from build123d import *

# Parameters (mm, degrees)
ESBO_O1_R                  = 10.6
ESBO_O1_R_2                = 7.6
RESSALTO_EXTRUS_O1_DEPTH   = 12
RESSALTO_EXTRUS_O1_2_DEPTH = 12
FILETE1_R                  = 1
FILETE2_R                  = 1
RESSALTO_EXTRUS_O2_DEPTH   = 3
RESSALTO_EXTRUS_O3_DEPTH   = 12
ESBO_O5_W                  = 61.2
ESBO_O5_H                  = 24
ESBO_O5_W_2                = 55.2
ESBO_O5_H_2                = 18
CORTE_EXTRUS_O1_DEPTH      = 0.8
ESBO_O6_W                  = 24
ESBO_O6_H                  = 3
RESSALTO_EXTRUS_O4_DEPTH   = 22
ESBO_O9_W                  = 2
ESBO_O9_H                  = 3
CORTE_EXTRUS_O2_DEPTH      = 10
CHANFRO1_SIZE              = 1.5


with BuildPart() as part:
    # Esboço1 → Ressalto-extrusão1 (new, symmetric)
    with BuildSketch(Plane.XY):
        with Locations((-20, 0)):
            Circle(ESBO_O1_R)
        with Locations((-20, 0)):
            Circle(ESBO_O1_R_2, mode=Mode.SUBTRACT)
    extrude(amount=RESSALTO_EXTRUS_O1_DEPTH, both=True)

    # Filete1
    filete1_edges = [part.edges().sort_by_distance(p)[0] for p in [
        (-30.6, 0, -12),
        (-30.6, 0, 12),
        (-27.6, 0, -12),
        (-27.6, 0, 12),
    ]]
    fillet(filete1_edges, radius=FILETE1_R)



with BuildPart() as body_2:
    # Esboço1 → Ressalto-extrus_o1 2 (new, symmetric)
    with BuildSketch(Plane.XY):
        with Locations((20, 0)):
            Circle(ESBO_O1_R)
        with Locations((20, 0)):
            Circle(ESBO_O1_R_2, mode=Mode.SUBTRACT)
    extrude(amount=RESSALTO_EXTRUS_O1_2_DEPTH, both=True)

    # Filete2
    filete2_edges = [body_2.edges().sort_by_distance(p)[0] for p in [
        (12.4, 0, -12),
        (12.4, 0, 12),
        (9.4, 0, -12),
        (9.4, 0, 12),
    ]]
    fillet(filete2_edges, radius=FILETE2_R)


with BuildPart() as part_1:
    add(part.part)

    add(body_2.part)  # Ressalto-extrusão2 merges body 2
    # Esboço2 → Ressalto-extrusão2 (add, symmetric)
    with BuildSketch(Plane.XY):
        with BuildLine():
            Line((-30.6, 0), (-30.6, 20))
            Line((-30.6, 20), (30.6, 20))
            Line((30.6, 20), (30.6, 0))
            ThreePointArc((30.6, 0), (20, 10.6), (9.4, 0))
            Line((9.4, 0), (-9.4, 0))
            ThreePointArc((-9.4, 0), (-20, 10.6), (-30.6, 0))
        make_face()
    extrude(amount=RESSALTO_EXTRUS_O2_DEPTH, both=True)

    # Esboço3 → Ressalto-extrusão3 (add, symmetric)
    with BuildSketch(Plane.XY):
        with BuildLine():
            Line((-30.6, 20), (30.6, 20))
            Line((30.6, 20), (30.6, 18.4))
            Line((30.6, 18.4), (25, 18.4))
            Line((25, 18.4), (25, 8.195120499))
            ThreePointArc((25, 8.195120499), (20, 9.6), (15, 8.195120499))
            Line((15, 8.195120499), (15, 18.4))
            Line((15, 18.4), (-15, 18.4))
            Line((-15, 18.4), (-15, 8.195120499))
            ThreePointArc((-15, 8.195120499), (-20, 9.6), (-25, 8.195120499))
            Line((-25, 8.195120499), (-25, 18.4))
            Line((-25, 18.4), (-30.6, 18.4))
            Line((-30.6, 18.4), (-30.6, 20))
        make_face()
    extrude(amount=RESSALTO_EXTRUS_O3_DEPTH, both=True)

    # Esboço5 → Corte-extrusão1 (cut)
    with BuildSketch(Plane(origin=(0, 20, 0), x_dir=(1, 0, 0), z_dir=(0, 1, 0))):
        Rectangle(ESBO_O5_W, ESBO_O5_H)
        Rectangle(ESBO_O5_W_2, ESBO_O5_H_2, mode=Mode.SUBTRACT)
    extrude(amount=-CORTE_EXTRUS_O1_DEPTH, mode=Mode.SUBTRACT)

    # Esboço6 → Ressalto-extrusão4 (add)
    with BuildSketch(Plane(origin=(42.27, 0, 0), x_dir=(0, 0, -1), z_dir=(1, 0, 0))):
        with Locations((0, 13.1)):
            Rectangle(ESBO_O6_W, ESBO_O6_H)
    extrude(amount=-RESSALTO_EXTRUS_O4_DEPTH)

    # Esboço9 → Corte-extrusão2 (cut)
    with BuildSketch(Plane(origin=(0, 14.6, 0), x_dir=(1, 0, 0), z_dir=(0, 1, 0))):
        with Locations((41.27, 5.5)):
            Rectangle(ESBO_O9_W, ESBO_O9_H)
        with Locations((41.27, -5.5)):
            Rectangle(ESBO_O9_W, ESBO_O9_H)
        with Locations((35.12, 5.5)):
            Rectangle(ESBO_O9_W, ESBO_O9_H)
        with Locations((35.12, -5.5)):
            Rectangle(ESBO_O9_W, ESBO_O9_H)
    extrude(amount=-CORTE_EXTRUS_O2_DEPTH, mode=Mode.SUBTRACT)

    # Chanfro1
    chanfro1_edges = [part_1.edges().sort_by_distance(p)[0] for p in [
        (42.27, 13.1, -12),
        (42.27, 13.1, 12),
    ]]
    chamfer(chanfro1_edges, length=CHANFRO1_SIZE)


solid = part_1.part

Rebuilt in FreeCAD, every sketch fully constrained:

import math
import FreeCAD as App
import Part
import Sketcher
Q = App.Units.Quantity


def edges_at(feature, points):
    """Names of the edges that pass closest to the given points."""
    edges = feature.Shape.Edges
    near = lambda p: min(range(len(edges)), key=lambda i: edges[i].distToShape(Part.Vertex(*p))[0])
    return sorted({f"Edge{near(p) + 1}" for p in points})

doc = App.newDocument("Part")
params = doc.addObject("Spreadsheet::Sheet", "Params")
for row, (alias, value) in enumerate([
    ("sketch1_diameter", "21.2 mm"),
    ("sketch1_diameter2", "15.2 mm"),
    ("pad1_length", "24 mm"),
    ("fillet_radius", "1 mm"),
    ("sketch2_diameter", "21.2 mm"),
    ("sketch2_diameter2", "15.2 mm"),
    ("pad2_length", "24 mm"),
    ("fillet2_radius", "1 mm"),
    ("sketch3_radius", "10.6 mm"),
    ("sketch3_height", "20 mm"),
    ("sketch3_width", "18.8 mm"),
    ("pad3_length", "6 mm"),
    ("sketch4_radius", "9.6 mm"),
    ("sketch4_width", "30 mm"),
    ("sketch4_width2", "61.2 mm"),
    ("sketch4_width3", "5.6 mm"),
    ("sketch4_height", "1.6 mm"),
    ("pad4_length", "24 mm"),
    ("sketch5_height", "24 mm"),
    ("sketch5_height2", "18 mm"),
    ("sketch5_width", "61.2 mm"),
    ("sketch5_width2", "55.2 mm"),
    ("pocket1_length", "0.8 mm"),
    ("sketch6_width", "3 mm"),
    ("sketch6_height", "24 mm"),
    ("pad5_length", "22 mm"),
    ("sketch7_width", "2 mm"),
    ("sketch7_height", "3 mm"),
    ("pocket2_length", "10 mm"),
    ("chamfer_size", "1.5 mm"),
], start=1):
    params.set(f"A{row}", alias)
    params.set(f"B{row}", "=" + value)
    params.setAlias(f"B{row}", alias)

body = doc.addObject("PartDesign::Body", "Body")

# Sketch on XY plane
sketch1 = body.newObject("Sketcher::SketchObject", "Sketch")
sketch1.AttachmentSupport = (doc.getObject("XY_Plane"), [""])
sketch1.MapMode = "FlatFace"
sketch1.addGeometry([
    Part.Circle(App.Vector(-20, 0, 0), App.Vector(0, 0, 1), 11),
    Part.Circle(App.Vector(-20, 0, 0), App.Vector(0, 0, 1), 8),
], False)
sketch1.addConstraint([
    Sketcher.Constraint("Coincident", 1, 3, 0, 3),
    Sketcher.Constraint("PointOnObject", 0, 3, -1),
    Sketcher.Constraint("Diameter", 0, Q("21.2 mm")),
    Sketcher.Constraint("Diameter", 1, Q("15.2 mm")),
    Sketcher.Constraint("DistanceX", 0, 3, -1, 1, Q("20 mm")),
])
sketch1.setExpression("Constraints[2]", "Params.sketch1_diameter")
sketch1.setExpression("Constraints[3]", "Params.sketch1_diameter2")
pad1 = body.newObject("PartDesign::Pad", "Pad")
pad1.Profile = sketch1
pad1.setExpression("Length", "Params.pad1_length")
pad1.Midplane = True
doc.recompute()

fillet = body.newObject("PartDesign::Fillet", "Fillet")
fillet.Base = (pad1, edges_at(pad1, [
    (-30.6, 0, -12),
    (-30.6, 0, 12),
    (-27.6, 0, -12),
    (-27.6, 0, 12),
]))
fillet.setExpression("Radius", "Params.fillet_radius")
body2 = doc.addObject("PartDesign::Body", "Body001")

# Sketch on XY plane
sketch2 = body2.newObject("Sketcher::SketchObject", "Sketch001")
sketch2.AttachmentSupport = (doc.getObject("XY_Plane001"), [""])
sketch2.MapMode = "FlatFace"
sketch2.addGeometry([
    Part.Circle(App.Vector(20, 0, 0), App.Vector(0, 0, 1), 11),
    Part.Circle(App.Vector(20, 0, 0), App.Vector(0, 0, 1), 8),
], False)
sketch2.addConstraint([
    Sketcher.Constraint("Coincident", 1, 3, 0, 3),
    Sketcher.Constraint("PointOnObject", 0, 3, -1),
    Sketcher.Constraint("Diameter", 0, Q("21.2 mm")),
    Sketcher.Constraint("Diameter", 1, Q("15.2 mm")),
    Sketcher.Constraint("DistanceX", -1, 1, 0, 3, Q("20 mm")),
])
sketch2.setExpression("Constraints[2]", "Params.sketch2_diameter")
sketch2.setExpression("Constraints[3]", "Params.sketch2_diameter2")
pad2 = body2.newObject("PartDesign::Pad", "Pad001")
pad2.Profile = sketch2
pad2.setExpression("Length", "Params.pad2_length")
pad2.Midplane = True
doc.recompute()

fillet2 = body2.newObject("PartDesign::Fillet", "Fillet001")
fillet2.Base = (pad2, edges_at(pad2, [
    (12.4, 0, -12),
    (12.4, 0, 12),
    (9.4, 0, -12),
    (9.4, 0, 12),
]))
fillet2.setExpression("Radius", "Params.fillet2_radius")
body.AllowCompound = True
doc.recompute()

boolean = body.newObject("PartDesign::Boolean", "Boolean")
boolean.Type = "Fuse"
boolean.addObjects([body2])

# Sketch on XY plane
sketch3 = body.newObject("Sketcher::SketchObject", "Sketch002")
sketch3.AttachmentSupport = (doc.getObject("XY_Plane"), [""])
sketch3.MapMode = "FlatFace"
sketch3.addGeometry([
    Part.LineSegment(App.Vector(-31, 20, 0), App.Vector(-31, 0, 0)),  # 0
    Part.ArcOfCircle(Part.Circle(App.Vector(-20, 0, 0), App.Vector(0, 0, 1), 11), math.radians(0), math.radians(180)),  # 1
    Part.LineSegment(App.Vector(-9, 0, 0), App.Vector(9, 0, 0)),  # 2
    Part.ArcOfCircle(Part.Circle(App.Vector(20, 0, 0), App.Vector(0, 0, 1), 11), math.radians(0), math.radians(180)),  # 3
    Part.LineSegment(App.Vector(31, 0, 0), App.Vector(31, 20, 0)),  # 4
    Part.LineSegment(App.Vector(31, 20, 0), App.Vector(-31, 20, 0)),  # 5
], False)
sketch3.addConstraint([
    Sketcher.Constraint("Tangent", 0, 2, 1, 2),
    Sketcher.Constraint("Coincident", 1, 1, 2, 1),
    Sketcher.Constraint("Coincident", 2, 2, 3, 2),
    Sketcher.Constraint("Tangent", 3, 1, 4, 1),
    Sketcher.Constraint("Coincident", 4, 2, 5, 1),
    Sketcher.Constraint("Coincident", 5, 2, 0, 1),
    Sketcher.Constraint("Vertical", 0),
    Sketcher.Constraint("Horizontal", 2),
    Sketcher.Constraint("Vertical", 4),
    Sketcher.Constraint("Horizontal", 5),
    Sketcher.Constraint("Equal", 1, 3),
    Sketcher.Constraint("Symmetric", 1, 3, 3, 3, -1, 1),
    Sketcher.Constraint("PointOnObject", 1, 3, -1),
    Sketcher.Constraint("PointOnObject", 1, 1, -1),
    Sketcher.Constraint("Radius", 1, Q("10.6 mm")),
    Sketcher.Constraint("DistanceY", 0, 2, 0, 1, Q("20 mm")),
    Sketcher.Constraint("DistanceX", 2, 1, 2, 2, Q("18.8 mm")),
])
sketch3.setExpression("Constraints[14]", "Params.sketch3_radius")
sketch3.setExpression("Constraints[15]", "Params.sketch3_height")
sketch3.setExpression("Constraints[16]", "Params.sketch3_width")
pad3 = body.newObject("PartDesign::Pad", "Pad002")
pad3.Profile = sketch3
pad3.setExpression("Length", "Params.pad3_length")
pad3.Midplane = True

# Sketch on XY plane
sketch4 = body.newObject("Sketcher::SketchObject", "Sketch003")
sketch4.AttachmentSupport = (doc.getObject("XY_Plane"), [""])
sketch4.MapMode = "FlatFace"
sketch4.addGeometry([
    Part.LineSegment(App.Vector(30.6, 20, 0), App.Vector(-30.6, 20, 0)),  # 0
    Part.LineSegment(App.Vector(-30.6, 20, 0), App.Vector(-30.6, 18.4, 0)),  # 1
    Part.LineSegment(App.Vector(-30.6, 18.4, 0), App.Vector(-25, 18.4, 0)),  # 2
    Part.LineSegment(App.Vector(-25, 18.4, 0), App.Vector(-25, 8.2, 0)),  # 3
    Part.ArcOfCircle(Part.Circle(App.Vector(-20, 0, 0), App.Vector(0, 0, 1), 9.6), math.radians(59), math.radians(121)),  # 4
    Part.LineSegment(App.Vector(-15, 8.2, 0), App.Vector(-15, 18.4, 0)),  # 5
    Part.LineSegment(App.Vector(-15, 18.4, 0), App.Vector(15, 18.4, 0)),  # 6
    Part.LineSegment(App.Vector(15, 18.4, 0), App.Vector(15, 8.2, 0)),  # 7
    Part.ArcOfCircle(Part.Circle(App.Vector(20, 0, 0), App.Vector(0, 0, 1), 9.6), math.radians(59), math.radians(121)),  # 8
    Part.LineSegment(App.Vector(25, 8.2, 0), App.Vector(25, 18.4, 0)),  # 9
    Part.LineSegment(App.Vector(25, 18.4, 0), App.Vector(30.6, 18.4, 0)),  # 10
    Part.LineSegment(App.Vector(30.6, 18.4, 0), App.Vector(30.6, 20, 0)),  # 11
], False)
sketch4.addConstraint([
    Sketcher.Constraint("Coincident", 0, 2, 1, 1),
    Sketcher.Constraint("Coincident", 1, 2, 2, 1),
    Sketcher.Constraint("Coincident", 2, 2, 3, 1),
    Sketcher.Constraint("Coincident", 3, 2, 4, 2),
    Sketcher.Constraint("Coincident", 4, 1, 5, 1),
    Sketcher.Constraint("Coincident", 5, 2, 6, 1),
    Sketcher.Constraint("Coincident", 6, 2, 7, 1),
    Sketcher.Constraint("Coincident", 7, 2, 8, 2),
    Sketcher.Constraint("Coincident", 8, 1, 9, 1),
    Sketcher.Constraint("Coincident", 9, 2, 10, 1),
    Sketcher.Constraint("Coincident", 10, 2, 11, 1),
    Sketcher.Constraint("Coincident", 11, 2, 0, 1),
    Sketcher.Constraint("Horizontal", 0),
    Sketcher.Constraint("Vertical", 1),
    Sketcher.Constraint("Horizontal", 2),
    Sketcher.Constraint("Vertical", 3),
    Sketcher.Constraint("Vertical", 5),
    Sketcher.Constraint("Horizontal", 6),
    Sketcher.Constraint("Vertical", 7),
    Sketcher.Constraint("Vertical", 9),
    Sketcher.Constraint("Horizontal", 10),
    Sketcher.Constraint("Vertical", 11),
    Sketcher.Constraint("Equal", 4, 8),
    Sketcher.Constraint("Symmetric", 4, 3, 8, 3, -1, 1),
    Sketcher.Constraint("Symmetric", 4, 1, 7, 2, -2),
    Sketcher.Constraint("Symmetric", 2, 2, 9, 2, -2),
    Sketcher.Constraint("Horizontal", 3, 2, 4, 1),
    Sketcher.Constraint("Horizontal", 2, 2, 5, 2),
    Sketcher.Constraint("Equal", 2, 10),
    Sketcher.Constraint("Radius", 4, Q("9.6 mm")),
    Sketcher.Constraint("DistanceX", 6, 1, 6, 2, Q("30 mm")),
    Sketcher.Constraint("DistanceX", 0, 2, 0, 1, Q("61.2 mm")),
    Sketcher.Constraint("DistanceX", 2, 1, 2, 2, Q("5.6 mm")),
    Sketcher.Constraint("DistanceY", 1, 2, 1, 1, Q("1.6 mm")),
    Sketcher.Constraint("DistanceY", -1, 1, 0, 2, Q("20 mm")),
])
sketch4.setExpression("Constraints[29]", "Params.sketch4_radius")
sketch4.setExpression("Constraints[30]", "Params.sketch4_width")
sketch4.setExpression("Constraints[31]", "Params.sketch4_width2")
sketch4.setExpression("Constraints[32]", "Params.sketch4_width3")
sketch4.setExpression("Constraints[33]", "Params.sketch4_height")
pad4 = body.newObject("PartDesign::Pad", "Pad003")
pad4.Profile = sketch4
pad4.setExpression("Length", "Params.pad4_length")
pad4.Midplane = True

# Sketch on XZ plane
sketch5 = body.newObject("Sketcher::SketchObject", "Sketch004")
sketch5.AttachmentSupport = (doc.getObject("XZ_Plane"), [""])
sketch5.MapMode = "FlatFace"
sketch5.AttachmentOffset = App.Placement(App.Vector(0, 0, -20), App.Rotation())
sketch5.addGeometry([
    Part.LineSegment(App.Vector(-31, -12, 0), App.Vector(-31, 12, 0)),  # 0
    Part.LineSegment(App.Vector(-31, 12, 0), App.Vector(31, 12, 0)),  # 1
    Part.LineSegment(App.Vector(31, 12, 0), App.Vector(31, -12, 0)),  # 2
    Part.LineSegment(App.Vector(31, -12, 0), App.Vector(-31, -12, 0)),  # 3
    Part.LineSegment(App.Vector(28, 9, 0), App.Vector(-28, 9, 0)),  # 4
    Part.LineSegment(App.Vector(-28, 9, 0), App.Vector(-28, -9, 0)),  # 5
    Part.LineSegment(App.Vector(-28, -9, 0), App.Vector(28, -9, 0)),  # 6
    Part.LineSegment(App.Vector(28, -9, 0), App.Vector(28, 9, 0)),  # 7
], False)
sketch5.addConstraint([
    Sketcher.Constraint("Coincident", 0, 2, 1, 1),
    Sketcher.Constraint("Coincident", 1, 2, 2, 1),
    Sketcher.Constraint("Coincident", 2, 2, 3, 1),
    Sketcher.Constraint("Coincident", 3, 2, 0, 1),
    Sketcher.Constraint("Coincident", 4, 2, 5, 1),
    Sketcher.Constraint("Coincident", 5, 2, 6, 1),
    Sketcher.Constraint("Coincident", 6, 2, 7, 1),
    Sketcher.Constraint("Coincident", 7, 2, 4, 1),
    Sketcher.Constraint("Vertical", 0),
    Sketcher.Constraint("Horizontal", 1),
    Sketcher.Constraint("Vertical", 2),
    Sketcher.Constraint("Horizontal", 3),
    Sketcher.Constraint("Horizontal", 4),
    Sketcher.Constraint("Vertical", 5),
    Sketcher.Constraint("Horizontal", 6),
    Sketcher.Constraint("Vertical", 7),
    Sketcher.Constraint("Symmetric", 0, 2, 2, 2, -1, 1),
    Sketcher.Constraint("Symmetric", 4, 2, 6, 2, -1, 1),
    Sketcher.Constraint("DistanceY", 0, 1, 0, 2, Q("24 mm")),
    Sketcher.Constraint("DistanceY", 5, 2, 5, 1, Q("18 mm")),
    Sketcher.Constraint("DistanceX", 1, 1, 1, 2, Q("61.2 mm")),
    Sketcher.Constraint("DistanceX", 4, 2, 4, 1, Q("55.2 mm")),
])
sketch5.setExpression("Constraints[18]", "Params.sketch5_height")
sketch5.setExpression("Constraints[19]", "Params.sketch5_height2")
sketch5.setExpression("Constraints[20]", "Params.sketch5_width")
sketch5.setExpression("Constraints[21]", "Params.sketch5_width2")
pocket1 = body.newObject("PartDesign::Pocket", "Pocket")
pocket1.Profile = sketch5
pocket1.setExpression("Length", "Params.pocket1_length")
pocket1.Reversed = True

# Sketch on YZ plane
sketch6 = body.newObject("Sketcher::SketchObject", "Sketch005")
sketch6.AttachmentSupport = (doc.getObject("YZ_Plane"), [""])
sketch6.MapMode = "FlatFace"
sketch6.AttachmentOffset = App.Placement(App.Vector(0, 0, 42.27), App.Rotation())
sketch6.addGeometry([
    Part.LineSegment(App.Vector(14.6, 12, 0), App.Vector(11.6, 12, 0)),
    Part.LineSegment(App.Vector(11.6, 12, 0), App.Vector(11.6, -12, 0)),
    Part.LineSegment(App.Vector(11.6, -12, 0), App.Vector(14.6, -12, 0)),
    Part.LineSegment(App.Vector(14.6, -12, 0), App.Vector(14.6, 12, 0)),
], False)
sketch6.addConstraint([
    Sketcher.Constraint("Coincident", 0, 2, 1, 1),
    Sketcher.Constraint("Coincident", 1, 2, 2, 1),
    Sketcher.Constraint("Coincident", 2, 2, 3, 1),
    Sketcher.Constraint("Coincident", 3, 2, 0, 1),
    Sketcher.Constraint("Horizontal", 0),
    Sketcher.Constraint("Vertical", 1),
    Sketcher.Constraint("Horizontal", 2),
    Sketcher.Constraint("Vertical", 3),
    Sketcher.Constraint("DistanceX", 0, 2, 0, 1, Q("3 mm")),
    Sketcher.Constraint("DistanceY", 1, 2, 1, 1, Q("24 mm")),
    Sketcher.Constraint("DistanceY", -1, 1, 0, 2, Q("12 mm")),
    Sketcher.Constraint("DistanceX", -1, 1, 0, 2, Q("11.6 mm")),
])
sketch6.setExpression("Constraints[8]", "Params.sketch6_width")
sketch6.setExpression("Constraints[9]", "Params.sketch6_height")
pad5 = body.newObject("PartDesign::Pad", "Pad004")
pad5.Profile = sketch6
pad5.setExpression("Length", "Params.pad5_length")
pad5.Reversed = True

# Sketch on XZ plane
sketch7 = body.newObject("Sketcher::SketchObject", "Sketch006")
sketch7.AttachmentSupport = (doc.getObject("XZ_Plane"), [""])
sketch7.MapMode = "FlatFace"
sketch7.AttachmentOffset = App.Placement(App.Vector(0, 0, -14.6), App.Rotation())
sketch7.addGeometry([
    Part.LineSegment(App.Vector(40.3, -7, 0), App.Vector(40.3, -4, 0)),  # 0
    Part.LineSegment(App.Vector(40.3, -4, 0), App.Vector(42.3, -4, 0)),  # 1
    Part.LineSegment(App.Vector(42.3, -4, 0), App.Vector(42.3, -7, 0)),  # 2
    Part.LineSegment(App.Vector(42.3, -7, 0), App.Vector(40.3, -7, 0)),  # 3
    Part.LineSegment(App.Vector(40.3, 4, 0), App.Vector(40.3, 7, 0)),  # 4
    Part.LineSegment(App.Vector(40.3, 7, 0), App.Vector(42.3, 7, 0)),  # 5
    Part.LineSegment(App.Vector(42.3, 7, 0), App.Vector(42.3, 4, 0)),  # 6
    Part.LineSegment(App.Vector(42.3, 4, 0), App.Vector(40.3, 4, 0)),  # 7
    Part.LineSegment(App.Vector(34.1, -7, 0), App.Vector(34.1, -4, 0)),  # 8
    Part.LineSegment(App.Vector(34.1, -4, 0), App.Vector(36.1, -4, 0)),  # 9
    Part.LineSegment(App.Vector(36.1, -4, 0), App.Vector(36.1, -7, 0)),  # 10
    Part.LineSegment(App.Vector(36.1, -7, 0), App.Vector(34.1, -7, 0)),  # 11
    Part.LineSegment(App.Vector(34.1, 4, 0), App.Vector(34.1, 7, 0)),  # 12
    Part.LineSegment(App.Vector(34.1, 7, 0), App.Vector(36.1, 7, 0)),  # 13
    Part.LineSegment(App.Vector(36.1, 7, 0), App.Vector(36.1, 4, 0)),  # 14
    Part.LineSegment(App.Vector(36.1, 4, 0), App.Vector(34.1, 4, 0)),  # 15
], False)
sketch7.addConstraint([
    Sketcher.Constraint("Coincident", 0, 2, 1, 1),
    Sketcher.Constraint("Coincident", 1, 2, 2, 1),
    Sketcher.Constraint("Coincident", 2, 2, 3, 1),
    Sketcher.Constraint("Coincident", 3, 2, 0, 1),
    Sketcher.Constraint("Coincident", 4, 2, 5, 1),
    Sketcher.Constraint("Coincident", 5, 2, 6, 1),
    Sketcher.Constraint("Coincident", 6, 2, 7, 1),
    Sketcher.Constraint("Coincident", 7, 2, 4, 1),
    Sketcher.Constraint("Coincident", 8, 2, 9, 1),
    Sketcher.Constraint("Coincident", 9, 2, 10, 1),
    Sketcher.Constraint("Coincident", 10, 2, 11, 1),
    Sketcher.Constraint("Coincident", 11, 2, 8, 1),
    Sketcher.Constraint("Coincident", 12, 2, 13, 1),
    Sketcher.Constraint("Coincident", 13, 2, 14, 1),
    Sketcher.Constraint("Coincident", 14, 2, 15, 1),
    Sketcher.Constraint("Coincident", 15, 2, 12, 1),
    Sketcher.Constraint("Vertical", 0),
    Sketcher.Constraint("Horizontal", 1),
    Sketcher.Constraint("Vertical", 2),
    Sketcher.Constraint("Horizontal", 3),
    Sketcher.Constraint("Vertical", 4),
    Sketcher.Constraint("Horizontal", 5),
    Sketcher.Constraint("Vertical", 6),
    Sketcher.Constraint("Horizontal", 7),
    Sketcher.Constraint("Vertical", 8),
    Sketcher.Constraint("Horizontal", 9),
    Sketcher.Constraint("Vertical", 10),
    Sketcher.Constraint("Horizontal", 11),
    Sketcher.Constraint("Vertical", 12),
    Sketcher.Constraint("Horizontal", 13),
    Sketcher.Constraint("Vertical", 14),
    Sketcher.Constraint("Horizontal", 15),
    Sketcher.Constraint("Symmetric", 3, 2, 4, 2, -1),
    Sketcher.Constraint("Symmetric", 1, 2, 6, 2, -1),
    Sketcher.Constraint("Symmetric", 11, 2, 12, 2, -1),
    Sketcher.Constraint("Symmetric", 9, 2, 14, 2, -1),
    Sketcher.Constraint("Horizontal", 1, 2, 8, 2),
    Sketcher.Constraint("Horizontal", 3, 2, 10, 2),
    Sketcher.Constraint("Equal", 7, 9),
    Sketcher.Constraint("DistanceX", 1, 1, 1, 2, Q("2 mm")),
    Sketcher.Constraint("DistanceY", 0, 1, 0, 2, Q("3 mm")),
    Sketcher.Constraint("DistanceY", 0, 2, -1, 1, Q("4 mm")),
    Sketcher.Constraint("DistanceX", -1, 1, 0, 2, Q("40.27 mm")),
    Sketcher.Constraint("DistanceX", -1, 1, 8, 2, Q("34.12 mm")),
])
sketch7.setExpression("Constraints[39]", "Params.sketch7_width")
sketch7.setExpression("Constraints[40]", "Params.sketch7_height")
pocket2 = body.newObject("PartDesign::Pocket", "Pocket001")
pocket2.Profile = sketch7
pocket2.setExpression("Length", "Params.pocket2_length")
pocket2.Reversed = True
doc.recompute()

chamfer = body.newObject("PartDesign::Chamfer", "Chamfer")
chamfer.Base = (pocket2, edges_at(pocket2, [(42.27, 13.1, -12), (42.27, 13.1, 12)]))
chamfer.setExpression("Size", "Params.chamfer_size")

doc.recompute()
